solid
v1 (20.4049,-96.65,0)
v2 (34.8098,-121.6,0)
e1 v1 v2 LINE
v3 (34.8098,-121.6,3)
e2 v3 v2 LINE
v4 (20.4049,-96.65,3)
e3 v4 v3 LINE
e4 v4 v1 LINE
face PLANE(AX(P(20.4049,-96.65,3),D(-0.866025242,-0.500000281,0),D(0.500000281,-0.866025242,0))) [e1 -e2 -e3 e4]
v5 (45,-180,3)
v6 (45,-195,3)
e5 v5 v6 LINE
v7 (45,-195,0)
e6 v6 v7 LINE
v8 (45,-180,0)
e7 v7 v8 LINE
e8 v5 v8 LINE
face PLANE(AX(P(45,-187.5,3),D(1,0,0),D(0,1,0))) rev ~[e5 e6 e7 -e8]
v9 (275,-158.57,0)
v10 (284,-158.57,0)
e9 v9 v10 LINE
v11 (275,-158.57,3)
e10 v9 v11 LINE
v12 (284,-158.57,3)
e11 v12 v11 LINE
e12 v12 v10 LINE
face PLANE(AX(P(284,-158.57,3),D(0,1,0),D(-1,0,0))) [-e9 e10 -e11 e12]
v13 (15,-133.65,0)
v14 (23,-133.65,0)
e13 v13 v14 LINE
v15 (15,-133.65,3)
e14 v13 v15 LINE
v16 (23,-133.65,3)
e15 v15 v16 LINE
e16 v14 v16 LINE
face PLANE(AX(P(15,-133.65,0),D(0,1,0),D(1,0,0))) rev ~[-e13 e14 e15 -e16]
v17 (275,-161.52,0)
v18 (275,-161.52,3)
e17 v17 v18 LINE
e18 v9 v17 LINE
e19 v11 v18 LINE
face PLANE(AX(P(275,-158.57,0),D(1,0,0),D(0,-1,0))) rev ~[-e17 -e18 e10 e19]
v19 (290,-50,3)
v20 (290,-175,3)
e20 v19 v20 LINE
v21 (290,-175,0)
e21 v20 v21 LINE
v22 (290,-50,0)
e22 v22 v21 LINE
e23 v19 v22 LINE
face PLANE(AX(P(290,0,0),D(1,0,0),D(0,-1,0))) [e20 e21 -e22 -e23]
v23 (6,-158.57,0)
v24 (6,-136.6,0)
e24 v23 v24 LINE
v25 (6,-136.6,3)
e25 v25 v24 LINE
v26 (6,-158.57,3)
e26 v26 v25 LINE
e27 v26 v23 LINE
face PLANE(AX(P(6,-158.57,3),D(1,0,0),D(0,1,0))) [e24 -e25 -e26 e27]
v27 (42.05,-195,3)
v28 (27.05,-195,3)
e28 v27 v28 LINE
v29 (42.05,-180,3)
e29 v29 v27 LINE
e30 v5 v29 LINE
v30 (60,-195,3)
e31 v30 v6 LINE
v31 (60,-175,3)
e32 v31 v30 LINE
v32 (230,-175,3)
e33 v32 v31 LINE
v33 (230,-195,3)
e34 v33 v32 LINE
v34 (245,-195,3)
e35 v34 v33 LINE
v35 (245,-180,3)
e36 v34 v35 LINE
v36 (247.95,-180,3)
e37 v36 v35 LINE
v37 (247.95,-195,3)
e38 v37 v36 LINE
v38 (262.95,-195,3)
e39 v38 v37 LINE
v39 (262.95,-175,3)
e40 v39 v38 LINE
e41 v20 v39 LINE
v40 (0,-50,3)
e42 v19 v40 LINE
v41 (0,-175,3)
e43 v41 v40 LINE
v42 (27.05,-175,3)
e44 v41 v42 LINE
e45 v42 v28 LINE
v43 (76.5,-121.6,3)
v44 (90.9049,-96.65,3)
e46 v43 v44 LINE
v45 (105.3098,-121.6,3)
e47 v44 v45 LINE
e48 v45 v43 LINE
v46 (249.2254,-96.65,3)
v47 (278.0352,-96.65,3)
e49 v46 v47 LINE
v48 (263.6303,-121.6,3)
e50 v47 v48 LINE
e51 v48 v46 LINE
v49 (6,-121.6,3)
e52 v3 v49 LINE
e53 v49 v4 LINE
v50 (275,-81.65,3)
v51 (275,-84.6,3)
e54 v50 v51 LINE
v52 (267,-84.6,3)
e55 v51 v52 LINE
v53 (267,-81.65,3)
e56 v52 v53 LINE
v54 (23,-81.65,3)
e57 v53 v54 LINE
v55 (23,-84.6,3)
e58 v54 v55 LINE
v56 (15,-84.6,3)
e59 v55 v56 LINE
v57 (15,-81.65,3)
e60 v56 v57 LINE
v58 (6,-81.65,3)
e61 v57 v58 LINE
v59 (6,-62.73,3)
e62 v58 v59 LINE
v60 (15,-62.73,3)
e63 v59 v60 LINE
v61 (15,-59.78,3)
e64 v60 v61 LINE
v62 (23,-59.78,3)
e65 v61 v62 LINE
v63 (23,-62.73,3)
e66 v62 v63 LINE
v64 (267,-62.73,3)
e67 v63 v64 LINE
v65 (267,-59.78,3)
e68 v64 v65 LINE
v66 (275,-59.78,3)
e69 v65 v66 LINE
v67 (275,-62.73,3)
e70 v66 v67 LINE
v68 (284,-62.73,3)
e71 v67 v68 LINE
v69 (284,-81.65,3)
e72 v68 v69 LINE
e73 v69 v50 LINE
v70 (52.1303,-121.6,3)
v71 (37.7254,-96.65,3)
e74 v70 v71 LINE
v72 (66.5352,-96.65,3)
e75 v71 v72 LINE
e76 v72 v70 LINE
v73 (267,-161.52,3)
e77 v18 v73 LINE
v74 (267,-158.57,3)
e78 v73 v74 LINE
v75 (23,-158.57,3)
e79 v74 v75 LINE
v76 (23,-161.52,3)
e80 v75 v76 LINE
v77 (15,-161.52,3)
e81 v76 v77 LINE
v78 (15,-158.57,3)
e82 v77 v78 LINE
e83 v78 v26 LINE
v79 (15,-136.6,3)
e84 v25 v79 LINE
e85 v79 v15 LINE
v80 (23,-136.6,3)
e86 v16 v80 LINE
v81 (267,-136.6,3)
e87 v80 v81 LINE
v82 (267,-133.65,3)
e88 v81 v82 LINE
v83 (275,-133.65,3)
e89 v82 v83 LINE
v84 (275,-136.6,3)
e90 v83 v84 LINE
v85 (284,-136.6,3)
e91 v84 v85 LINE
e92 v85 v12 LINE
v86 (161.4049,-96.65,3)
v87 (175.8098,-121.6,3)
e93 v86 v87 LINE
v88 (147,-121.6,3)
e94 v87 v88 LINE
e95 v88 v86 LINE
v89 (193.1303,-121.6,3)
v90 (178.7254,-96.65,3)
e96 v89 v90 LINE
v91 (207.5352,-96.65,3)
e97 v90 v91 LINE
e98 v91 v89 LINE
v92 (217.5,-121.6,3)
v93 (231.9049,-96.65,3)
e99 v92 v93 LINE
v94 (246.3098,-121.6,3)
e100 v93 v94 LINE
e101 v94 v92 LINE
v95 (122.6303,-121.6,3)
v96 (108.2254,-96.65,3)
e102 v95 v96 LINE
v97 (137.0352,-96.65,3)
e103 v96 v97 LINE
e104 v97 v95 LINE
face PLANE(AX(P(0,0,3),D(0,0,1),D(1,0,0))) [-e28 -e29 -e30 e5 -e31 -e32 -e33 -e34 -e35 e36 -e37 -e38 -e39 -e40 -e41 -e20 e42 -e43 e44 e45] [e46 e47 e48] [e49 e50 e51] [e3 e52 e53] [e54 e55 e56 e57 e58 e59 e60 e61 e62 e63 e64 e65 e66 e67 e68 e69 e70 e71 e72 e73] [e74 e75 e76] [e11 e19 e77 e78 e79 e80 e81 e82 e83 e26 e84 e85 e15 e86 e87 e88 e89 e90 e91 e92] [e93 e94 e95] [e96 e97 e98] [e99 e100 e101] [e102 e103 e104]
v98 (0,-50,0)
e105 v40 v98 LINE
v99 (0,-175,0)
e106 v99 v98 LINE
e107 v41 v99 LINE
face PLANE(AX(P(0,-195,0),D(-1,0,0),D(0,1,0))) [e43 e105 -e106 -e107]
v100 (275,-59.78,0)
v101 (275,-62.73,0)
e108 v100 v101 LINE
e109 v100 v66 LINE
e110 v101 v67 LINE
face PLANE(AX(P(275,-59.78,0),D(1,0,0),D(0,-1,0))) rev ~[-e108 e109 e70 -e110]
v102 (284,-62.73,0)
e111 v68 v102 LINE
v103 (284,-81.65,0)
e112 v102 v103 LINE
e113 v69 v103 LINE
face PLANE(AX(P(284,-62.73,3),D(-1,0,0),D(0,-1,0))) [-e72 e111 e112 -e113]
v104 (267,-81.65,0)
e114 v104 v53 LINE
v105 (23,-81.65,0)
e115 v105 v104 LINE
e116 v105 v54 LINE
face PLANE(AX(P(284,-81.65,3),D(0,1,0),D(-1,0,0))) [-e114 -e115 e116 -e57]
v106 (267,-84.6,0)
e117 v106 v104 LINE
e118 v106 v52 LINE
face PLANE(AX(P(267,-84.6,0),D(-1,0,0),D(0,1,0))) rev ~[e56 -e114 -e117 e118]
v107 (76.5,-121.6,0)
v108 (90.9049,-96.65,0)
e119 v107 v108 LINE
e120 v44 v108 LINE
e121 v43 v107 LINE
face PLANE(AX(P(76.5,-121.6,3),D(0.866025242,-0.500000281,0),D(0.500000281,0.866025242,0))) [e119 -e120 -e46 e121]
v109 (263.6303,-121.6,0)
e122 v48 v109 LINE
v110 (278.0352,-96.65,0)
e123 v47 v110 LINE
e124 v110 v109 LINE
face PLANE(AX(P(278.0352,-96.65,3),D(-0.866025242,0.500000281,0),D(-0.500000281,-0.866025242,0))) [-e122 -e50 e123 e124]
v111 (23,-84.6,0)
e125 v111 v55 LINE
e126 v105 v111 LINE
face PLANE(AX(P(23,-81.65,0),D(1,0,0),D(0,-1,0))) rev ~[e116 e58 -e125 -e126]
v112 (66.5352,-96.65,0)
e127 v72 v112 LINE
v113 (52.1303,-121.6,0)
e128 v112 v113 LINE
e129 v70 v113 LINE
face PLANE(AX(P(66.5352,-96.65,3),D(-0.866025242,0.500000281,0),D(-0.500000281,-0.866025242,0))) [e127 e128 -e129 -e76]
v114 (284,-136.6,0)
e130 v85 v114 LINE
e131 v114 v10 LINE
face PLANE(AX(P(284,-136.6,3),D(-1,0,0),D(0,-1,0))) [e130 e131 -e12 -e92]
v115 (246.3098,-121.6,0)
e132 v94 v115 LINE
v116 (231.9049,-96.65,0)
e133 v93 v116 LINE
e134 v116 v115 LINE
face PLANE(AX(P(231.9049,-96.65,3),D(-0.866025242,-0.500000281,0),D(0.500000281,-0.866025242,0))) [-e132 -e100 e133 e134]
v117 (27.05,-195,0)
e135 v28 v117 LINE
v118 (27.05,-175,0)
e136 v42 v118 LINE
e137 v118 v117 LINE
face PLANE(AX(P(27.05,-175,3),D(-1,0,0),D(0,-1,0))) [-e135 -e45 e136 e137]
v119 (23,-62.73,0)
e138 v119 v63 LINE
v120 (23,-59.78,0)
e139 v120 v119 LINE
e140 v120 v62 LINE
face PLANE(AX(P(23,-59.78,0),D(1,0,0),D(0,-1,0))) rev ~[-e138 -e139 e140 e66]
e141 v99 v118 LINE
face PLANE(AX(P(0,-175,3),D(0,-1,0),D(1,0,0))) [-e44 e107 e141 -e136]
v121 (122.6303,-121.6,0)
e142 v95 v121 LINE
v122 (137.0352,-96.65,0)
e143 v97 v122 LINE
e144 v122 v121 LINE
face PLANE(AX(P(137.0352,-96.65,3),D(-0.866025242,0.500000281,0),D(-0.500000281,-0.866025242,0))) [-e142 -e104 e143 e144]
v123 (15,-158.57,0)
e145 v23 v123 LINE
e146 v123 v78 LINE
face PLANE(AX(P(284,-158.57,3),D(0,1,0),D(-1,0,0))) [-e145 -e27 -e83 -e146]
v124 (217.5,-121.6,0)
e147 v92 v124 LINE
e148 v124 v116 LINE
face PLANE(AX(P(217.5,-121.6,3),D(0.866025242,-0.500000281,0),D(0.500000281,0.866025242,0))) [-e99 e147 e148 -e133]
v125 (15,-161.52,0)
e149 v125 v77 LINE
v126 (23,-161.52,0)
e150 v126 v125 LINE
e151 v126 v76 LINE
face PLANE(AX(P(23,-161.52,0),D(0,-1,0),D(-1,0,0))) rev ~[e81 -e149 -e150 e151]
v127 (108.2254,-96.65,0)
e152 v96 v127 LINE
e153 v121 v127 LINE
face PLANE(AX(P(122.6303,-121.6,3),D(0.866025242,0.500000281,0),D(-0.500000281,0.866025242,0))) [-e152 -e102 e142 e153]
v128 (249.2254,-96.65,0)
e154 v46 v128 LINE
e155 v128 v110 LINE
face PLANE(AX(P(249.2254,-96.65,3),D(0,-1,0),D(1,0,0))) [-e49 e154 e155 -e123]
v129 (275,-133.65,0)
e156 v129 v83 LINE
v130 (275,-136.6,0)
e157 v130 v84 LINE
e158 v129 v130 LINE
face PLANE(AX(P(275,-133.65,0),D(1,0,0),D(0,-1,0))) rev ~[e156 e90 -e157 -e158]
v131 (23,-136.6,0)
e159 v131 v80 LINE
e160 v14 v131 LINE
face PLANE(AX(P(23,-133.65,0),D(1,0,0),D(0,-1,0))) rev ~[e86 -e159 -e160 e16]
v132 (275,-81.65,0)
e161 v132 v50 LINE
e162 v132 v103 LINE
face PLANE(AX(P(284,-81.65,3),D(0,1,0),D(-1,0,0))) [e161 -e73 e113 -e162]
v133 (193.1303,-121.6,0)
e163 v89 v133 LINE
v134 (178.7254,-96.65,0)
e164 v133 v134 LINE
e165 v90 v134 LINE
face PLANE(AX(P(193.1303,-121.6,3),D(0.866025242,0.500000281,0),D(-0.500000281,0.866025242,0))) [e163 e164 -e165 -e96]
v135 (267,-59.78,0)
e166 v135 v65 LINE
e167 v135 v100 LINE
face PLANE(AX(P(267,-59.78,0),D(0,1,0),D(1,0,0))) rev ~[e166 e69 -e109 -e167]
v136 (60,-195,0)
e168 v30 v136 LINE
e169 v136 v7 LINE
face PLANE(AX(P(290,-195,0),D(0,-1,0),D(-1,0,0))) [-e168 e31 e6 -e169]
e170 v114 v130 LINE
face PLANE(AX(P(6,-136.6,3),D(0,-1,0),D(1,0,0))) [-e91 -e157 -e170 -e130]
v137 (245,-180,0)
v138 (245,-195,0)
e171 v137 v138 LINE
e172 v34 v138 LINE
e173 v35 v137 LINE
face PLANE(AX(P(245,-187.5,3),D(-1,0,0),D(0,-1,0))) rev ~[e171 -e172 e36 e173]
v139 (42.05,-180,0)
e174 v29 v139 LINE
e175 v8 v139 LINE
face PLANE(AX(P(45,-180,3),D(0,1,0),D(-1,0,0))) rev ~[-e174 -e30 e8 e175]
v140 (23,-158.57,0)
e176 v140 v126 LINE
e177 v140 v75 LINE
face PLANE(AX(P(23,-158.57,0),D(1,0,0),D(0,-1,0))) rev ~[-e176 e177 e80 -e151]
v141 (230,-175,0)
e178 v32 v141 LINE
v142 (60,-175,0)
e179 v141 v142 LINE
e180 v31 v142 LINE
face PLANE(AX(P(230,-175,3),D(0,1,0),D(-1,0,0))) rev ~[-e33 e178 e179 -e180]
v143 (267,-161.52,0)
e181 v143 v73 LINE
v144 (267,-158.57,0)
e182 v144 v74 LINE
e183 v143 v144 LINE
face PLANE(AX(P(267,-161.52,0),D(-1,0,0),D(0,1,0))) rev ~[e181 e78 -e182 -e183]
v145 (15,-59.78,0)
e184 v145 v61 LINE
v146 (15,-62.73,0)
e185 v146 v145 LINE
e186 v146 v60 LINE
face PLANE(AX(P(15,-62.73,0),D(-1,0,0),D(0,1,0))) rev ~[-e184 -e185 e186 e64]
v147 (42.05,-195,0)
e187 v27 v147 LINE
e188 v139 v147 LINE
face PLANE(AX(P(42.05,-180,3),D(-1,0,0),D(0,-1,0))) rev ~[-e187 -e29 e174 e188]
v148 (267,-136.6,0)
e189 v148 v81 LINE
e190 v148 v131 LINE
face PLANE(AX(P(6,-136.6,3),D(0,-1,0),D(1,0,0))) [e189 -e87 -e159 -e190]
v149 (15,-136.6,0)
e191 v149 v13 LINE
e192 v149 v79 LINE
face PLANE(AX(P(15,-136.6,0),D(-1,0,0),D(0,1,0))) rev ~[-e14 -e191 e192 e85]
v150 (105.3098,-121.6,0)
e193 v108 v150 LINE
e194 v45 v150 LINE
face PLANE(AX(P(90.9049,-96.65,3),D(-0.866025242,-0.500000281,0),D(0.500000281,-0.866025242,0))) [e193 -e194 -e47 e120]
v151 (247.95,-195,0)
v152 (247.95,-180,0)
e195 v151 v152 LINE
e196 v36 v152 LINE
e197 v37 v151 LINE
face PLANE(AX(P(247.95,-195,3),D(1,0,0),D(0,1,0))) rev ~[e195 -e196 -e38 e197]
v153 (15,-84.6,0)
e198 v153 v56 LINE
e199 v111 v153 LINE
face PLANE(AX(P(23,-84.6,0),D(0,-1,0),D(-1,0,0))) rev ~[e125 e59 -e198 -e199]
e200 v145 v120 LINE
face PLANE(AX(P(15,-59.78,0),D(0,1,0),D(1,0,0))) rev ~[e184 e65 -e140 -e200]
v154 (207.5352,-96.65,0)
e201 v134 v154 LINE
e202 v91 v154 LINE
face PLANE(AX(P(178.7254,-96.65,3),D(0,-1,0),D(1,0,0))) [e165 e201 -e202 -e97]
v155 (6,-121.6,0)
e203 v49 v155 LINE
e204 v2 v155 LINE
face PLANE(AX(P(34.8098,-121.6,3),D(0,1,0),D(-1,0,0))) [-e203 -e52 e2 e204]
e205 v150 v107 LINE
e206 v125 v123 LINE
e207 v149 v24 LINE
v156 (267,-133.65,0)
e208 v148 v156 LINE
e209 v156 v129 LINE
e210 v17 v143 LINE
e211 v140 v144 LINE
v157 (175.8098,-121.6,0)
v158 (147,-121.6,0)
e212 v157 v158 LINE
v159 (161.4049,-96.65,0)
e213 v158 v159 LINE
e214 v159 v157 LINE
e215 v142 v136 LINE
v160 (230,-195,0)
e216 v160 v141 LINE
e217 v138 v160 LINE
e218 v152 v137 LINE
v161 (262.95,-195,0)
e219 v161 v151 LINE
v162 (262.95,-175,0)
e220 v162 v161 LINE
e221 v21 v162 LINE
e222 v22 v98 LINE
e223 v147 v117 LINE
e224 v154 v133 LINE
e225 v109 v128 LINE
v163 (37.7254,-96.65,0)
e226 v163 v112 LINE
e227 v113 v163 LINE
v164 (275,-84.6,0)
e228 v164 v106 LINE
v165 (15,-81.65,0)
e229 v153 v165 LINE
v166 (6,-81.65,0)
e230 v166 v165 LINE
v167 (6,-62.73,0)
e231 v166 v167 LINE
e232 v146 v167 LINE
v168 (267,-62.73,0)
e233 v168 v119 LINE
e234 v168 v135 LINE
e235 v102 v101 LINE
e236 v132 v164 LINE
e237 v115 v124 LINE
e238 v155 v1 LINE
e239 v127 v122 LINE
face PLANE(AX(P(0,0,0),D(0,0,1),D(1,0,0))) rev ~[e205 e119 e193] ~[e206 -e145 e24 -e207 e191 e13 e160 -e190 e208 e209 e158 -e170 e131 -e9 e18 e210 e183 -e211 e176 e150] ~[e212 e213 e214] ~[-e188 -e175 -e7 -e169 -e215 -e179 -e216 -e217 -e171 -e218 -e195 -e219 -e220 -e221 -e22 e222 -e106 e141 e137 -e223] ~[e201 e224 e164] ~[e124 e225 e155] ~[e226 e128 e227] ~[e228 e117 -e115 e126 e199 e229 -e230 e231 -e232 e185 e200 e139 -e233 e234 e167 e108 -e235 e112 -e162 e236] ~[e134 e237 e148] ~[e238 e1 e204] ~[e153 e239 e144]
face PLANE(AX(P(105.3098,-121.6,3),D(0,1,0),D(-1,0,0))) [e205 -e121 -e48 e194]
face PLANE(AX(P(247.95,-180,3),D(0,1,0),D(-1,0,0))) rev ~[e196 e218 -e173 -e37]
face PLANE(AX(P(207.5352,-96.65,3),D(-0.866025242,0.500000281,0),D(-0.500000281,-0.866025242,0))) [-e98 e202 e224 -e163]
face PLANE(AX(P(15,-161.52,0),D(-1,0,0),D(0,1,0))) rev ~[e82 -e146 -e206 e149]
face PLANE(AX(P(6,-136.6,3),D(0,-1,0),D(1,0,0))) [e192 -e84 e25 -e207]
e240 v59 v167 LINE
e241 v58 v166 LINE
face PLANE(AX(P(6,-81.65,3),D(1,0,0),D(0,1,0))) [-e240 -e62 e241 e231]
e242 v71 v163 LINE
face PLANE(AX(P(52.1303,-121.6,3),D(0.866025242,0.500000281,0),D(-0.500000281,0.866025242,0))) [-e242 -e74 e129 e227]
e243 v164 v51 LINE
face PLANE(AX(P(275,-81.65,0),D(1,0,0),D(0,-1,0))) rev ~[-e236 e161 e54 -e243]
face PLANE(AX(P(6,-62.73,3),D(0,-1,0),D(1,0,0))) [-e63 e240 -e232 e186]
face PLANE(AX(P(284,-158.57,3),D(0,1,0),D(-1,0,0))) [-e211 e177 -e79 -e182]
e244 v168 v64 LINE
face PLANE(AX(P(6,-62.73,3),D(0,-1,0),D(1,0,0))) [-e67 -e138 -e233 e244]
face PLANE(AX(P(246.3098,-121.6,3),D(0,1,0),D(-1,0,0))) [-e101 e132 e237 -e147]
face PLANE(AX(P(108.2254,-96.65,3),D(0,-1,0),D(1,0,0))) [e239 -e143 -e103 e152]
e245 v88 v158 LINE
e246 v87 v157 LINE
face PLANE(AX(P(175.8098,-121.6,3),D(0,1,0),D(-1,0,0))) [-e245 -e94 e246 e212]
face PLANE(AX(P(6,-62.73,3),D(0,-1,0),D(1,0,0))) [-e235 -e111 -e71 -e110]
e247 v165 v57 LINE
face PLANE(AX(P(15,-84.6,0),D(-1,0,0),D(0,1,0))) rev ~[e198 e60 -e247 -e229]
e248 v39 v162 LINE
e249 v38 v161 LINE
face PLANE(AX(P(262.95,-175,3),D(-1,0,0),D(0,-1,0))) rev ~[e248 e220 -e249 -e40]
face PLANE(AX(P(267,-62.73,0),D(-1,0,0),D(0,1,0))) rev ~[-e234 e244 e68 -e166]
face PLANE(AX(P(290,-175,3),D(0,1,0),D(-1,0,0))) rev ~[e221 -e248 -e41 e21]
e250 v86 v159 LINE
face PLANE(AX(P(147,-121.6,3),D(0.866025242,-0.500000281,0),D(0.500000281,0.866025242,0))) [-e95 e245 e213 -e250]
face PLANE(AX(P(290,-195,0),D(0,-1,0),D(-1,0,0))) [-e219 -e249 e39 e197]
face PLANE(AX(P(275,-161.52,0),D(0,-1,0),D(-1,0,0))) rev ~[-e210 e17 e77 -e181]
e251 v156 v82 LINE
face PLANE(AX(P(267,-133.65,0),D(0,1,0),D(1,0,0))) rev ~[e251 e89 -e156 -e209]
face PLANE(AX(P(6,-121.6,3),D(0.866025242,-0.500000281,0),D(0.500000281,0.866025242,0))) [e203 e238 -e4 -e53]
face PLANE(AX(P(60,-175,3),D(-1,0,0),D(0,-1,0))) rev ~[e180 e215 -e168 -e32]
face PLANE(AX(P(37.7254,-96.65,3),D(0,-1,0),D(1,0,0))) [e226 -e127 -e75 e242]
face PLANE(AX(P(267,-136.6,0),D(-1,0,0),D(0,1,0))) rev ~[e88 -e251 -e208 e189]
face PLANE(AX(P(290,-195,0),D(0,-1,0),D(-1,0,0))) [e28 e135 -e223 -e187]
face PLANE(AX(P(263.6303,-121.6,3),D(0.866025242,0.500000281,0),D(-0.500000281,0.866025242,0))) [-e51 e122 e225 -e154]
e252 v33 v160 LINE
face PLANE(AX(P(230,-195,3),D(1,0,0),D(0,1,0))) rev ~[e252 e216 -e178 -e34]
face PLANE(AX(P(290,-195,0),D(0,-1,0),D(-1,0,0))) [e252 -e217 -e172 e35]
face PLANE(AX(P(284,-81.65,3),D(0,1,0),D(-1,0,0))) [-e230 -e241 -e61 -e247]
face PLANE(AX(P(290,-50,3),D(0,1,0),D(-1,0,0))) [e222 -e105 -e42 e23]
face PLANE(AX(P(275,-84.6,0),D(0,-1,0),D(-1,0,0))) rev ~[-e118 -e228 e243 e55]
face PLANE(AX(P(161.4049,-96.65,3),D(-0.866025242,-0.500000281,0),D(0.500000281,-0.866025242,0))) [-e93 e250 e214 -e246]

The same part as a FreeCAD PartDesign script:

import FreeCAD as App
import Part
import Sketcher

V = App.Vector
Q = App.Units.Quantity

doc = App.newDocument("Part")
body = doc.addObject("PartDesign::Body", "Body")

# Sketch on XY plane
sketch1 = body.newObject("Sketcher::SketchObject", "Sketch")
sketch1.AttachmentSupport = (doc.getObject("XY_Plane"), [""])
sketch1.MapMode = "FlatFace"
sketch1.addGeometry([
    Part.LineSegment(V(290, 0, 0), V(0, 0, 0)),  # 0
    Part.LineSegment(V(0, 0, 0), V(0, -195, 0)),  # 1
    Part.LineSegment(V(0, -195, 0), V(290, -195, 0)),  # 2
    Part.LineSegment(V(290, -195, 0), V(290, 0, 0)),  # 3
    Part.LineSegment(V(15, -161.52, 0), V(15, -158.57, 0)),  # 4
    Part.LineSegment(V(15, -158.57, 0), V(23, -158.57, 0)),  # 5
    Part.LineSegment(V(23, -158.57, 0), V(23, -161.52, 0)),  # 6
    Part.LineSegment(V(23, -161.52, 0), V(15, -161.52, 0)),  # 7
    Part.LineSegment(V(15, -136.6, 0), V(15, -133.65, 0)),  # 8
    Part.LineSegment(V(15, -133.65, 0), V(23, -133.65, 0)),  # 9
    Part.LineSegment(V(23, -133.65, 0), V(23, -136.6, 0)),  # 10
    Part.LineSegment(V(23, -136.6, 0), V(15, -136.6, 0)),  # 11
    Part.LineSegment(V(267, -161.52, 0), V(267, -158.57, 0)),  # 12
    Part.LineSegment(V(267, -158.57, 0), V(275, -158.57, 0)),  # 13
    Part.LineSegment(V(275, -158.57, 0), V(275, -161.52, 0)),  # 14
    Part.LineSegment(V(275, -161.52, 0), V(267, -161.52, 0)),  # 15
    Part.LineSegment(V(267, -136.6, 0), V(267, -133.65, 0)),  # 16
    Part.LineSegment(V(267, -133.65, 0), V(275, -133.65, 0)),  # 17
    Part.LineSegment(V(275, -133.65, 0), V(275, -136.6, 0)),  # 18
    Part.LineSegment(V(275, -136.6, 0), V(267, -136.6, 0)),  # 19
    Part.LineSegment(V(15, -84.6, 0), V(15, -81.65, 0)),  # 20
    Part.LineSegment(V(15, -81.65, 0), V(23, -81.65, 0)),  # 21
    Part.LineSegment(V(23, -81.65, 0), V(23, -84.6, 0)),  # 22
    Part.LineSegment(V(23, -84.6, 0), V(15, -84.6, 0)),  # 23
    Part.LineSegment(V(15, -62.73, 0), V(15, -59.78, 0)),  # 24
    Part.LineSegment(V(15, -59.78, 0), V(23, -59.78, 0)),  # 25
    Part.LineSegment(V(23, -59.78, 0), V(23, -62.73, 0)),  # 26
    Part.LineSegment(V(23, -62.73, 0), V(15, -62.73, 0)),  # 27
    Part.LineSegment(V(267, -81.65, 0), V(275, -81.65, 0)),  # 28
    Part.LineSegment(V(275, -81.65, 0), V(275, -84.6, 0)),  # 29
    Part.LineSegment(V(275, -84.6, 0), V(267, -84.6, 0)),  # 30
    Part.LineSegment(V(267, -84.6, 0), V(267, -81.65, 0)),  # 31
    Part.LineSegment(V(267, -59.78, 0), V(275, -59.78, 0)),  # 32
    Part.LineSegment(V(275, -59.78, 0), V(275, -62.73, 0)),  # 33
    Part.LineSegment(V(275, -62.73, 0), V(267, -62.73, 0)),  # 34
    Part.LineSegment(V(267, -62.73, 0), V(267, -59.78, 0)),  # 35
], False)
sketch1.addConstraint([
    Sketcher.Constraint("Coincident", 0, 2, 1, 1),
    Sketcher.Constraint("Coincident", 1, 2, 2, 1),
    Sketcher.Constraint("Coincident", 2, 2, 3, 1),
    Sketcher.Constraint("Coincident", 3, 2, 0, 1),
    Sketcher.Constraint("Coincident", 4, 2, 5, 1),
    Sketcher.Constraint("Coincident", 5, 2, 6, 1),
    Sketcher.Constraint("Coincident", 6, 2, 7, 1),
    Sketcher.Constraint("Coincident", 7, 2, 4, 1),
    Sketcher.Constraint("Coincident", 8, 2, 9, 1),
    Sketcher.Constraint("Coincident", 9, 2, 10, 1),
    Sketcher.Constraint("Coincident", 10, 2, 11, 1),
    Sketcher.Constraint("Coincident", 11, 2, 8, 1),
    Sketcher.Constraint("Coincident", 12, 2, 13, 1),
    Sketcher.Constraint("Coincident", 13, 2, 14, 1),
    Sketcher.Constraint("Coincident", 14, 2, 15, 1),
    Sketcher.Constraint("Coincident", 15, 2, 12, 1),
    Sketcher.Constraint("Coincident", 16, 2, 17, 1),
    Sketcher.Constraint("Coincident", 17, 2, 18, 1),
    Sketcher.Constraint("Coincident", 18, 2, 19, 1),
    Sketcher.Constraint("Coincident", 19, 2, 16, 1),
    Sketcher.Constraint("Coincident", 20, 2, 21, 1),
    Sketcher.Constraint("Coincident", 21, 2, 22, 1),
    Sketcher.Constraint("Coincident", 22, 2, 23, 1),
    Sketcher.Constraint("Coincident", 23, 2, 20, 1),
    Sketcher.Constraint("Coincident", 24, 2, 25, 1),
    Sketcher.Constraint("Coincident", 25, 2, 26, 1),
    Sketcher.Constraint("Coincident", 26, 2, 27, 1),
    Sketcher.Constraint("Coincident", 27, 2, 24, 1),
    Sketcher.Constraint("Coincident", 28, 2, 29, 1),
    Sketcher.Constraint("Coincident", 29, 2, 30, 1),
    Sketcher.Constraint("Coincident", 30, 2, 31, 1),
    Sketcher.Constraint("Coincident", 31, 2, 28, 1),
    Sketcher.Constraint("Coincident", 32, 2, 33, 1),
    Sketcher.Constraint("Coincident", 33, 2, 34, 1),
    Sketcher.Constraint("Coincident", 34, 2, 35, 1),
    Sketcher.Constraint("Coincident", 35, 2, 32, 1),
    Sketcher.Constraint("Horizontal", 0),
    Sketcher.Constraint("Vertical", 1),
    Sketcher.Constraint("Horizontal", 2),
    Sketcher.Constraint("Vertical", 3),
    Sketcher.Constraint("Vertical", 4),
    Sketcher.Constraint("Horizontal", 5),
    Sketcher.Constraint("Vertical", 6),
    Sketcher.Constraint("Horizontal", 7),
    Sketcher.Constraint("Vertical", 8),
    Sketcher.Constraint("Horizontal", 9),
    Sketcher.Constraint("Vertical", 10),
    Sketcher.Constraint("Horizontal", 11),
    Sketcher.Constraint("Vertical", 12),
    Sketcher.Constraint("Horizontal", 13),
    Sketcher.Constraint("Vertical", 14),
    Sketcher.Constraint("Horizontal", 15),
    Sketcher.Constraint("Vertical", 16),
    Sketcher.Constraint("Horizontal", 17),
    Sketcher.Constraint("Vertical", 18),
    Sketcher.Constraint("Horizontal", 19),
    Sketcher.Constraint("Vertical", 20),
    Sketcher.Constraint("Horizontal", 21),
    Sketcher.Constraint("Vertical", 22),
    Sketcher.Constraint("Horizontal", 23),
    Sketcher.Constraint("Vertical", 24),
    Sketcher.Constraint("Horizontal", 25),
    Sketcher.Constraint("Vertical", 26),
    Sketcher.Constraint("Horizontal", 27),
    Sketcher.Constraint("Horizontal", 28),
    Sketcher.Constraint("Vertical", 29),
    Sketcher.Constraint("Horizontal", 30),
    Sketcher.Constraint("Vertical", 31),
    Sketcher.Constraint("Horizontal", 32),
    Sketcher.Constraint("Vertical", 33),
    Sketcher.Constraint("Horizontal", 34),
    Sketcher.Constraint("Vertical", 35),
    Sketcher.Constraint("Coincident", 0, 2, -1, 1),
    Sketcher.Constraint("Horizontal", 5, 2, 12, 2),
    Sketcher.Constraint("Horizontal", 7, 2, 14, 2),
    Sketcher.Constraint("Horizontal", 9, 2, 16, 2),
    Sketcher.Constraint("Horizontal", 11, 2, 18, 2),
    Sketcher.Constraint("Horizontal", 21, 2, 28, 2),
    Sketcher.Constraint("Horizontal", 23, 2, 29, 2),
    Sketcher.Constraint("Horizontal", 25, 2, 32, 2),
    Sketcher.Constraint("Horizontal", 27, 2, 33, 2),
    Sketcher.Constraint("Vertical", 7, 2, 8, 2),
    Sketcher.Constraint("Vertical", 6, 2, 9, 2),
    Sketcher.Constraint("Vertical", 15, 2, 16, 2),
    Sketcher.Constraint("Vertical", 14, 2, 17, 2),
    Sketcher.Constraint("Vertical", 11, 2, 20, 2),
    Sketcher.Constraint("Vertical", 10, 2, 21, 2),
    Sketcher.Constraint("Vertical", 23, 2, 24, 2),
    Sketcher.Constraint("Vertical", 22, 2, 25, 2),
    Sketcher.Constraint("Vertical", 18, 2, 28, 2),
    Sketcher.Constraint("Vertical", 19, 2, 30, 2),
    Sketcher.Constraint("Vertical", 29, 2, 32, 2),
    Sketcher.Constraint("Vertical", 31, 2, 34, 2),
    Sketcher.Constraint("Equal", 11, 13),
    Sketcher.Constraint("Equal", 6, 8),
    Sketcher.Constraint("Equal", 18, 20),
    Sketcher.Constraint("Equal", 22, 24),
    Sketcher.Constraint("DistanceX", 0, 2, 0, 1, Q("290 mm")),
    Sketcher.Constraint("DistanceX", 5, 1, 5, 2, Q("8 mm")),
    Sketcher.Constraint("DistanceY", 1, 2, 1, 1, Q("195 mm")),
    Sketcher.Constraint("DistanceX", 5, 2, 13, 2, Q("252 mm")),
    Sketcher.Constraint("DistanceY", 8, 2, 20, 2, Q("52 mm")),
    Sketcher.Constraint("DistanceY", 4, 1, 4, 2, Q("2.95 mm")),
    Sketcher.Constraint("DistanceY", 5, 2, 10, 2, Q("21.97 mm")),
    Sketcher.Constraint("DistanceY", 21, 2, 26, 2, Q("18.92 mm")),
    Sketcher.Constraint("DistanceX", -1, 1, 4, 2, Q("15 mm")),
    Sketcher.Constraint("DistanceY", 10, 2, -1, 1, Q("136.6 mm")),
])
pad1 = body.newObject("PartDesign::Pad", "Pad")
pad1.Profile = sketch1
pad1.Length = 3

# Sketch on XY plane
sketch2 = body.newObject("Sketcher::SketchObject", "Sketch001")
sketch2.AttachmentSupport = (doc.getObject("XY_Plane"), [""])
sketch2.MapMode = "FlatFace"
sketch2.AttachmentOffset = App.Placement(V(0, 0, 3), App.Rotation())
sketch2.addGeometry([
    Part.LineSegment(V(290, -50, 0), V(290, 0, 0)),  # 0
    Part.LineSegment(V(290, 0, 0), V(0, 0, 0)),  # 1
    Part.LineSegment(V(0, 0, 0), V(0, -50, 0)),  # 2
    Part.LineSegment(V(0, -50, 0), V(290, -50, 0)),  # 3
    Part.LineSegment(V(245, -195, 0), V(247.95, -195, 0)),  # 4
    Part.LineSegment(V(247.95, -195, 0), V(247.95, -180, 0)),  # 5
    Part.LineSegment(V(247.95, -180, 0), V(245, -180, 0)),  # 6
    Part.LineSegment(V(245, -180, 0), V(245, -195, 0)),  # 7
    Part.LineSegment(V(42.05, -195, 0), V(45, -195, 0)),  # 8
    Part.LineSegment(V(45, -195, 0), V(45, -180, 0)),  # 9
    Part.LineSegment(V(45, -180, 0), V(42.05, -180, 0)),  # 10
    Part.LineSegment(V(42.05, -180, 0), V(42.05, -195, 0)),  # 11
], False)
sketch2.addConstraint([
    Sketcher.Constraint("Coincident", 0, 2, 1, 1),
    Sketcher.Constraint("Coincident", 1, 2, 2, 1),
    Sketcher.Constraint("Coincident", 2, 2, 3, 1),
    Sketcher.Constraint("Coincident", 3, 2, 0, 1),
    Sketcher.Constraint("Coincident", 4, 2, 5, 1),
    Sketcher.Constraint("Coincident", 5, 2, 6, 1),
    Sketcher.Constraint("Coincident", 6, 2, 7, 1),
    Sketcher.Constraint("Coincident", 7, 2, 4, 1),
    Sketcher.Constraint("Coincident", 8, 2, 9, 1),
    Sketcher.Constraint("Coincident", 9, 2, 10, 1),
    Sketcher.Constraint("Coincident", 10, 2, 11, 1),
    Sketcher.Constraint("Coincident", 11, 2, 8, 1),
    Sketcher.Constraint("Vertical", 0),
    Sketcher.Constraint("Horizontal", 1),
    Sketcher.Constraint("Vertical", 2),
    Sketcher.Constraint("Horizontal", 3),
    Sketcher.Constraint("Horizontal", 4),
    Sketcher.Constraint("Vertical", 5),
    Sketcher.Constraint("Horizontal", 6),
    Sketcher.Constraint("Vertical", 7),
    Sketcher.Constraint("Horizontal", 8),
    Sketcher.Constraint("Vertical", 9),
    Sketcher.Constraint("Horizontal", 10),
    Sketcher.Constraint("Vertical", 11),
    Sketcher.Constraint("Coincident", 1, 2, -1, 1),
    Sketcher.Constraint("Horizontal", 7, 2, 8, 2),
    Sketcher.Constraint("Horizontal", 6, 2, 9, 2),
    Sketcher.Constraint("Equal", 6, 8),
    Sketcher.Constraint("DistanceY", 0, 1, 0, 2, Q("50 mm")),
    Sketcher.Constraint("DistanceY", 5, 1, 5, 2, Q("15 mm")),
    Sketcher.Constraint("DistanceX", 8, 2, 7, 2, Q("200 mm")),
    Sketcher.Constraint("DistanceX", 4, 1, 4, 2, Q("2.95 mm")),
    Sketcher.Constraint("DistanceX", 1, 2, 1, 1, Q("290 mm")),
    Sketcher.Constraint("DistanceY", 4, 2, -1, 1, Q("195 mm")),
    Sketcher.Constraint("DistanceX", -1, 1, 6, 2, Q("245 mm")),
])
pocket1 = body.newObject("PartDesign::Pocket", "Pocket")
pocket1.Profile = sketch2
pocket1.Length = 3

# Sketch on XY plane
sketch3 = body.newObject("Sketcher::SketchObject", "Sketch002")
sketch3.AttachmentSupport = (doc.getObject("XY_Plane"), [""])
sketch3.MapMode = "FlatFace"
sketch3.AttachmentOffset = App.Placement(V(0, 0, 3), App.Rotation())
sketch3.addGeometry([
    Part.LineSegment(V(284, -136.6, 0), V(6, -136.6, 0)),  # 0
    Part.LineSegment(V(6, -136.6, 0), V(6, -158.57, 0)),  # 1
    Part.LineSegment(V(6, -158.57, 0), V(284, -158.57, 0)),  # 2
    Part.LineSegment(V(284, -158.57, 0), V(284, -136.6, 0)),  # 3
    Part.LineSegment(V(27.05, -175, 0), V(0, -175, 0)),  # 4
    Part.LineSegment(V(0, -175, 0), V(0, -195, 0)),  # 5
    Part.LineSegment(V(0, -195, 0), V(27.05, -195, 0)),  # 6
    Part.LineSegment(V(27.05, -195, 0), V(27.05, -175, 0)),  # 7
    Part.LineSegment(V(262.95, -195, 0), V(290, -195, 0)),  # 8
    Part.LineSegment(V(290, -195, 0), V(290, -175, 0)),  # 9
    Part.LineSegment(V(290, -175, 0), V(262.95, -175, 0)),  # 10
    Part.LineSegment(V(262.95, -175, 0), V(262.95, -195, 0)),  # 11
    Part.LineSegment(V(6, -62.73, 0), V(6, -81.65, 0)),  # 12
    Part.LineSegment(V(6, -81.65, 0), V(284, -81.65, 0)),  # 13
    Part.LineSegment(V(284, -81.65, 0), V(284, -62.73, 0)),  # 14
    Part.LineSegment(V(284, -62.73, 0), V(6, -62.73, 0)),  # 15
    Part.LineSegment(V(34.8098, -121.6, 0), V(20.4049, -96.65, 0)),  # 16
    Part.LineSegment(V(20.4049, -96.65, 0), V(6, -121.6, 0)),  # 17
    Part.LineSegment(V(6, -121.6, 0), V(34.8098, -121.6, 0)),  # 18
    Part.LineSegment(V(66.5352, -96.65, 0), V(37.7254, -96.65, 0)),  # 19
    Part.LineSegment(V(37.7254, -96.65, 0), V(52.1303, -121.6, 0)),  # 20
    Part.LineSegment(V(52.1303, -121.6, 0), V(66.5352, -96.65, 0)),  # 21
    Part.LineSegment(V(76.5, -121.6, 0), V(105.3098, -121.6, 0)),  # 22
    Part.LineSegment(V(105.3098, -121.6, 0), V(90.9049, -96.65, 0)),  # 23
    Part.LineSegment(V(90.9049, -96.65, 0), V(76.5, -121.6, 0)),  # 24
    Part.LineSegment(V(108.2254, -96.65, 0), V(122.6303, -121.6, 0)),  # 25
    Part.LineSegment(V(122.6303, -121.6, 0), V(137.0352, -96.65, 0)),  # 26
    Part.LineSegment(V(137.0352, -96.65, 0), V(108.2254, -96.65, 0)),  # 27
    Part.LineSegment(V(147, -121.6, 0), V(175.8098, -121.6, 0)),  # 28
    Part.LineSegment(V(175.8098, -121.6, 0), V(161.4049, -96.65, 0)),  # 29
    Part.LineSegment(V(161.4049, -96.65, 0), V(147, -121.6, 0)),  # 30
    Part.LineSegment(V(178.7254, -96.65, 0), V(193.1303, -121.6, 0)),  # 31
    Part.LineSegment(V(193.1303, -121.6, 0), V(207.5352, -96.65, 0)),  # 32
    Part.LineSegment(V(207.5352, -96.65, 0), V(178.7254, -96.65, 0)),  # 33
    Part.LineSegment(V(217.5, -121.6, 0), V(246.3098, -121.6, 0)),  # 34
    Part.LineSegment(V(246.3098, -121.6, 0), V(231.9049, -96.65, 0)),  # 35
    Part.LineSegment(V(231.9049, -96.65, 0), V(217.5, -121.6, 0)),  # 36
    Part.LineSegment(V(249.2254, -96.65, 0), V(263.6303, -121.6, 0)),  # 37
    Part.LineSegment(V(263.6303, -121.6, 0), V(278.0352, -96.65, 0)),  # 38
    Part.LineSegment(V(278.0352, -96.65, 0), V(249.2254, -96.65, 0)),  # 39
    Part.LineSegment(V(60, -175, 0), V(60, -195, 0)),  # 40
    Part.LineSegment(V(60, -195, 0), V(230, -195, 0)),  # 41
    Part.LineSegment(V(230, -195, 0), V(230, -175, 0)),  # 42
    Part.LineSegment(V(230, -175, 0), V(60, -175, 0)),  # 43
], False)
sketch3.addConstraint([
    Sketcher.Constraint("Coincident", 0, 2, 1, 1),
    Sketcher.Constraint("Coincident", 1, 2, 2, 1),
    Sketcher.Constraint("Coincident", 2, 2, 3, 1),
    Sketcher.Constraint("Coincident", 3, 2, 0, 1),
    Sketcher.Constraint("Coincident", 4, 2, 5, 1),
    Sketcher.Constraint("Coincident", 5, 2, 6, 1),
    Sketcher.Constraint("Coincident", 6, 2, 7, 1),
    Sketcher.Constraint("Coincident", 7, 2, 4, 1),
    Sketcher.Constraint("Coincident", 8, 2, 9, 1),
    Sketcher.Constraint("Coincident", 9, 2, 10, 1),
    Sketcher.Constraint("Coincident", 10, 2, 11, 1),
    Sketcher.Constraint("Coincident", 11, 2, 8, 1),
    Sketcher.Constraint("Coincident", 12, 2, 13, 1),
    Sketcher.Constraint("Coincident", 13, 2, 14, 1),
    Sketcher.Constraint("Coincident", 14, 2, 15, 1),
    Sketcher.Constraint("Coincident", 15, 2, 12, 1),
    Sketcher.Constraint("Coincident", 16, 2, 17, 1),
    Sketcher.Constraint("Coincident", 17, 2, 18, 1),
    Sketcher.Constraint("Coincident", 18, 2, 16, 1),
    Sketcher.Constraint("Coincident", 19, 2, 20, 1),
    Sketcher.Constraint("Coincident", 20, 2, 21, 1),
    Sketcher.Constraint("Coincident", 21, 2, 19, 1),
    Sketcher.Constraint("Coincident", 22, 2, 23, 1),
    Sketcher.Constraint("Coincident", 23, 2, 24, 1),
    Sketcher.Constraint("Coincident", 24, 2, 22, 1),
    Sketcher.Constraint("Coincident", 25, 2, 26, 1),
    Sketcher.Constraint("Coincident", 26, 2, 27, 1),
    Sketcher.Constraint("Coincident", 27, 2, 25, 1),
    Sketcher.Constraint("Coincident", 28, 2, 29, 1),
    Sketcher.Constraint("Coincident", 29, 2, 30, 1),
    Sketcher.Constraint("Coincident", 30, 2, 28, 1),
    Sketcher.Constraint("Coincident", 31, 2, 32, 1),
    Sketcher.Constraint("Coincident", 32, 2, 33, 1),
    Sketcher.Constraint("Coincident", 33, 2, 31, 1),
    Sketcher.Constraint("Coincident", 34, 2, 35, 1),
    Sketcher.Constraint("Coincident", 35, 2, 36, 1),
    Sketcher.Constraint("Coincident", 36, 2, 34, 1),
    Sketcher.Constraint("Coincident", 37, 2, 38, 1),
    Sketcher.Constraint("Coincident", 38, 2, 39, 1),
    Sketcher.Constraint("Coincident", 39, 2, 37, 1),
    Sketcher.Constraint("Coincident", 40, 2, 41, 1),
    Sketcher.Constraint("Coincident", 41, 2, 42, 1),
    Sketcher.Constraint("Coincident", 42, 2, 43, 1),
    Sketcher.Constraint("Coincident", 43, 2, 40, 1),
    Sketcher.Constraint("Horizontal", 0),
    Sketcher.Constraint("Vertical", 1),
    Sketcher.Constraint("Horizontal", 2),
    Sketcher.Constraint("Vertical", 3),
    Sketcher.Constraint("Horizontal", 4),
    Sketcher.Constraint("Vertical", 5),
    Sketcher.Constraint("Horizontal", 6),
    Sketcher.Constraint("Vertical", 7),
    Sketcher.Constraint("Horizontal", 8),
    Sketcher.Constraint("Vertical", 9),
    Sketcher.Constraint("Horizontal", 10),
    Sketcher.Constraint("Vertical", 11),
    Sketcher.Constraint("Vertical", 12),
    Sketcher.Constraint("Horizontal", 13),
    Sketcher.Constraint("Vertical", 14),
    Sketcher.Constraint("Horizontal", 15),
    Sketcher.Constraint("Horizontal", 18),
    Sketcher.Constraint("Horizontal", 19),
    Sketcher.Constraint("Horizontal", 22),
    Sketcher.Constraint("Horizontal", 27),
    Sketcher.Constraint("Horizontal", 28),
    Sketcher.Constraint("Horizontal", 33),
    Sketcher.Constraint("Horizontal", 34),
    Sketcher.Constraint("Horizontal", 39),
    Sketcher.Constraint("Vertical", 40),
    Sketcher.Constraint("Horizontal", 41),
    Sketcher.Constraint("Vertical", 42),
    Sketcher.Constraint("Horizontal", 43),
    Sketcher.Constraint("PointOnObject", 4, 2, -2),
    Sketcher.Constraint("Parallel", 16, 20),
    Sketcher.Constraint("Parallel", 17, 21),
    Sketcher.Constraint("Parallel", 20, 23),
    Sketcher.Constraint("Parallel", 21, 24),
    Sketcher.Constraint("Parallel", 23, 25),
    Sketcher.Constraint("Parallel", 24, 26),
    Sketcher.Constraint("Parallel", 25, 29),
    Sketcher.Constraint("Parallel", 26, 30),
    Sketcher.Constraint("Parallel", 29, 31),
    Sketcher.Constraint("Parallel", 30, 32),
    Sketcher.Constraint("Parallel", 31, 35),
    Sketcher.Constraint("Parallel", 32, 36),
    Sketcher.Constraint("Parallel", 35, 37),
    Sketcher.Constraint("Parallel", 36, 38),
    Sketcher.Constraint("Horizontal", 6, 2, 8, 2),
    Sketcher.Constraint("Horizontal", 7, 2, 9, 2),
    Sketcher.Constraint("Horizontal", 16, 2, 19, 2),
    Sketcher.Constraint("Horizontal", 18, 2, 20, 2),
    Sketcher.Constraint("Horizontal", 20, 2, 22, 2),
    Sketcher.Constraint("Horizontal", 21, 2, 23, 2),
    Sketcher.Constraint("Horizontal", 24, 2, 25, 2),
    Sketcher.Constraint("Horizontal", 23, 2, 26, 2),
    Sketcher.Constraint("Horizontal", 25, 2, 28, 2),
    Sketcher.Constraint("Horizontal", 27, 2, 29, 2),
    Sketcher.Constraint("Horizontal", 30, 2, 31, 2),
    Sketcher.Constraint("Horizontal", 29, 2, 32, 2),
    Sketcher.Constraint("Horizontal", 31, 2, 34, 2),
    Sketcher.Constraint("Horizontal", 33, 2, 35, 2),
    Sketcher.Constraint("Horizontal", 36, 2, 37, 2),
    Sketcher.Constraint("Horizontal", 35, 2, 38, 2),
    Sketcher.Constraint("Horizontal", 11, 2, 40, 2),
    Sketcher.Constraint("Horizontal", 10, 2, 42, 2),
    Sketcher.Constraint("Vertical", 1, 2, 12, 2),
    Sketcher.Constraint("Vertical", 3, 2, 13, 2),
    Sketcher.Constraint("Vertical", 15, 2, 17, 2),
    Sketcher.Constraint("Equal", 6, 8),
    Sketcher.Constraint("Equal", 16, 17),
    Sketcher.Constraint("DistanceY", 5, 2, 5, 1, Q("20 mm")),
    Sketcher.Constraint("DistanceX", -1, 1, 0, 2, Q("6 mm")),
    Sketcher.Constraint("DistanceX", 2, 2, 8, 2, Q("6 mm")),
    Sketcher.Constraint("DistanceY", 16, 2, 12, 2, Q("15 mm")),
    Sketcher.Constraint("DistanceY", 0, 2, 17, 2, Q("15 mm")),
    Sketcher.Constraint("DistanceX", 18, 2, 22, 2, Q("70.5 mm")),
    Sketcher.Constraint("DistanceX", 20, 2, 25, 2, Q("70.5 mm")),
    Sketcher.Constraint("DistanceX", 22, 2, 28, 2, Q("70.5 mm")),
    Sketcher.Constraint("DistanceX", 25, 2, 31, 2, Q("70.5 mm")),
    Sketcher.Constraint("DistanceX", 0, 2, 0, 1, Q("278 mm")),
    Sketcher.Constraint("DistanceX", 41, 1, 41, 2, Q("170 mm")),
    Sketcher.Constraint("Angle", 16, Q("120 deg")),
    Sketcher.Constraint("DistanceY", 4, 2, -1, 1, Q("175 mm")),
    Sketcher.Constraint("DistanceX", -1, 1, 40, 2, Q("60 mm")),
    Sketcher.Constraint("DistanceX", 4, 2, 4, 1, Q("27.05 mm")),
    Sketcher.Constraint("DistanceY", 1, 2, 1, 1, Q("21.97 mm")),
    Sketcher.Constraint("DistanceY", 12, 2, 12, 1, Q("18.92 mm")),
    Sketcher.Constraint("DistanceY", 0, 2, -1, 1, Q("136.6 mm")),
    Sketcher.Constraint("DistanceX", -1, 1, 36, 2, Q("217.5 mm")),
    Sketcher.Constraint("DistanceY", 12, 2, -1, 1, Q("81.65 mm")),
    Sketcher.Constraint("DistanceX", -1, 1, 19, 2, Q("37.7254 mm")),
    Sketcher.Constraint("DistanceX", -1, 1, 37, 2, Q("263.6303 mm")),
])
pocket2 = body.newObject("PartDesign::Pocket", "Pocket001")
pocket2.Profile = sketch3
pocket2.Length = 3

doc.recompute()
